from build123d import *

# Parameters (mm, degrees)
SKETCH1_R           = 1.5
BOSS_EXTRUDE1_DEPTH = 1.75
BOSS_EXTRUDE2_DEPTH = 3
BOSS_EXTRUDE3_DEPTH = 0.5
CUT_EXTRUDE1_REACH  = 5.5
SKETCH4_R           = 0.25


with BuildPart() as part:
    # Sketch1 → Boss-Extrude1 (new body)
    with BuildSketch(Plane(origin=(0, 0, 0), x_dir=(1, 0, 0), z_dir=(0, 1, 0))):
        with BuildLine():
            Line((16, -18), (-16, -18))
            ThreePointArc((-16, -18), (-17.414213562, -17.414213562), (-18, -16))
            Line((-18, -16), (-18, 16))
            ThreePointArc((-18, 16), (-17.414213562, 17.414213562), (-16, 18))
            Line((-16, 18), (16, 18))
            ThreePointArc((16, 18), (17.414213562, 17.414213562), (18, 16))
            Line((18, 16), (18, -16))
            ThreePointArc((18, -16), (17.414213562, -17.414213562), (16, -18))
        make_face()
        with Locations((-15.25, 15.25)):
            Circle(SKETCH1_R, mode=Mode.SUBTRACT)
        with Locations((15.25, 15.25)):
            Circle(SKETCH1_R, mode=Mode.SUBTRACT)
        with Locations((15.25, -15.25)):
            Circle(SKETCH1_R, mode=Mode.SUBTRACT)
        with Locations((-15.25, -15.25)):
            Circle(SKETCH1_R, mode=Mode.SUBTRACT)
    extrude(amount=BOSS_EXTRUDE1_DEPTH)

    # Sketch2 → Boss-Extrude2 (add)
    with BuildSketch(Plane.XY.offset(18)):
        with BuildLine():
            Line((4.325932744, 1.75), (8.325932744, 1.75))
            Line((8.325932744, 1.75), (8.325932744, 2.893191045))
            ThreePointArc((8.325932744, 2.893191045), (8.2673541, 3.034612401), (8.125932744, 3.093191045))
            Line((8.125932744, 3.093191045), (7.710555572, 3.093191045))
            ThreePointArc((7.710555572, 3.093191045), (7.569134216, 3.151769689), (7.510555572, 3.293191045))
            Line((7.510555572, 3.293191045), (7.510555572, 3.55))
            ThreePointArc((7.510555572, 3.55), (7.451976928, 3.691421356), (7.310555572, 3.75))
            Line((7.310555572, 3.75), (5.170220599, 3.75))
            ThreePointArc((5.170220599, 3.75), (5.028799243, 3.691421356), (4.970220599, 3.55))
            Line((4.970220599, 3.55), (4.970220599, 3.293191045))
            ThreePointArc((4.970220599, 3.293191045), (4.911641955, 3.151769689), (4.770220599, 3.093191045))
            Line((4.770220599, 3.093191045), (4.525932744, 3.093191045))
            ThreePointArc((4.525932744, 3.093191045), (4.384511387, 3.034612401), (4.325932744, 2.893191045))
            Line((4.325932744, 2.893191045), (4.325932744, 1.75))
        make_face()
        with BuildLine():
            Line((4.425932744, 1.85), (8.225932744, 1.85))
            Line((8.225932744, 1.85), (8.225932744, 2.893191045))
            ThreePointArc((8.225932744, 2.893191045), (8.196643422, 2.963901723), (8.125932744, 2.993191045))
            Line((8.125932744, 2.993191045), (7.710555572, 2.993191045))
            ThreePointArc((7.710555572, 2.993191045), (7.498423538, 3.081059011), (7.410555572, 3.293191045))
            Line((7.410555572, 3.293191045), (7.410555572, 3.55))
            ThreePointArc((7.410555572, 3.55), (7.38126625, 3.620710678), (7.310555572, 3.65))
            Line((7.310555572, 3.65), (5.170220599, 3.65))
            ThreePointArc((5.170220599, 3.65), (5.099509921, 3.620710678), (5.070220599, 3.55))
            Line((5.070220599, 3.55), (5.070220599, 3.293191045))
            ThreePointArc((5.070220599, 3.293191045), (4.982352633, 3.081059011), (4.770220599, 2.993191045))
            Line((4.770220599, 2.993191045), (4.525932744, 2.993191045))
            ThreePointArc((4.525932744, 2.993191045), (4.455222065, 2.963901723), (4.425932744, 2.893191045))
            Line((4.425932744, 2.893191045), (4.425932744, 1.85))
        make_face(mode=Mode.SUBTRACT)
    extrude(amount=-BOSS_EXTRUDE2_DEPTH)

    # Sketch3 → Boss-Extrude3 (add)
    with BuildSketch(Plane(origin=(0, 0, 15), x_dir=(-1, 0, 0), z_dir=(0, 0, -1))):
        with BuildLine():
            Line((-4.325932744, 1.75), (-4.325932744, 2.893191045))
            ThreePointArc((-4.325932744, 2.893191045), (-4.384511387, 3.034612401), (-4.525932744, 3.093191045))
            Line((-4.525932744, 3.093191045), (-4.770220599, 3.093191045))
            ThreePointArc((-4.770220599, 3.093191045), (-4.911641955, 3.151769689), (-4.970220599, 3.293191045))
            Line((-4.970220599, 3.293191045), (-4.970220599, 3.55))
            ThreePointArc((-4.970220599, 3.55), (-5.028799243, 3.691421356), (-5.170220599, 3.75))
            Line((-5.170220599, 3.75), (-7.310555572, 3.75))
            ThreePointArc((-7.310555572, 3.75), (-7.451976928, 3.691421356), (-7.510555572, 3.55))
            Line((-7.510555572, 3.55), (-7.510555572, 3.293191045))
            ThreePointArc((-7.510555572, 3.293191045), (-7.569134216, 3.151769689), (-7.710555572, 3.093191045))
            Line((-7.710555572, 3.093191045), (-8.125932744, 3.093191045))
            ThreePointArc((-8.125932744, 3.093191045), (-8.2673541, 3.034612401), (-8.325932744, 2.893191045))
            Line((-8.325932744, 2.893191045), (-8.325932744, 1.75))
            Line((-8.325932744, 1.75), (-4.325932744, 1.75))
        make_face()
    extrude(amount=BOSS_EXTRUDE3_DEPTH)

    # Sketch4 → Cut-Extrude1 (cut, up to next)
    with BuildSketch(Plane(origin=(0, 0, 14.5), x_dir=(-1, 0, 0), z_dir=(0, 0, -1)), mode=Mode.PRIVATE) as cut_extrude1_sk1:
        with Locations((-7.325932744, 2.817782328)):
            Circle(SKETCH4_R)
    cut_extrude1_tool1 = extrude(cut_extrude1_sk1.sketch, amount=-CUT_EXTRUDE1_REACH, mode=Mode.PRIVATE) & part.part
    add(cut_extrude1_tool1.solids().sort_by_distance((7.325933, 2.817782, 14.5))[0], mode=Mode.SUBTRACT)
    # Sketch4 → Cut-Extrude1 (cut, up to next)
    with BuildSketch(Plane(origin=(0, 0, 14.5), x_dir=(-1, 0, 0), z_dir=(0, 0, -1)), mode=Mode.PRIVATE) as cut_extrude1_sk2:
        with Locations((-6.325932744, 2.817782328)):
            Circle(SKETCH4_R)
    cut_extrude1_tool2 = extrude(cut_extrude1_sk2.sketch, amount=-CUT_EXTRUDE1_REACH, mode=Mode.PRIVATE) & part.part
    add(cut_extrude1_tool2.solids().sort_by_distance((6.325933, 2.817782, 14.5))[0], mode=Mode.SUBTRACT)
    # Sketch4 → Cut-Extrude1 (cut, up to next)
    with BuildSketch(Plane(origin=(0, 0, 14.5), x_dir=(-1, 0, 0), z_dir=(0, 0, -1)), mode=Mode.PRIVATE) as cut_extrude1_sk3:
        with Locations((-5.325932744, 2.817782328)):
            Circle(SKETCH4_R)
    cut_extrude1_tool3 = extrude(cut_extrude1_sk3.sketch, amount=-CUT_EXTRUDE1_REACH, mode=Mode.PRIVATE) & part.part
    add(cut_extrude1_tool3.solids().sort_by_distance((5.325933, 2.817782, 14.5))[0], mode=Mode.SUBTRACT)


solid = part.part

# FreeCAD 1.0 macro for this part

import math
import FreeCAD as App
import Part
import Sketcher

doc = App.newDocument("Part")
body = doc.addObject("PartDesign::Body", "Body")

# Sketch on XZ plane
sketch1 = doc.addObject("Sketcher::SketchObject", "Sketch")
body.addObject(sketch1)
sketch1.AttachmentSupport = (doc.XZ_Plane, [""])
sketch1.MapMode = "FlatFace"
sketch1.addGeometry([
    Part.LineSegment(App.Vector(-16, 18, 0), App.Vector(16, 18, 0)),  # 0
    Part.ArcOfCircle(Part.Circle(App.Vector(16, 16, 0), App.Vector(0, 0, 1), 2), math.radians(0), math.radians(90)),  # 1
    Part.LineSegment(App.Vector(18, 16, 0), App.Vector(18, -16, 0)),  # 2
    Part.ArcOfCircle(Part.Circle(App.Vector(16, -16, 0), App.Vector(0, 0, 1), 2), math.radians(-90), math.radians(0)),  # 3
    Part.LineSegment(App.Vector(16, -18, 0), App.Vector(-16, -18, 0)),  # 4
    Part.ArcOfCircle(Part.Circle(App.Vector(-16, -16, 0), App.Vector(0, 0, 1), 2), math.radians(-180), math.radians(-90)),  # 5
    Part.LineSegment(App.Vector(-18, -16, 0), App.Vector(-18, 16, 0)),  # 6
    Part.ArcOfCircle(Part.Circle(App.Vector(-16, 16, 0), App.Vector(0, 0, 1), 2), math.radians(90), math.radians(180)),  # 7
    Part.Circle(App.Vector(15.2, 15.2, 0), App.Vector(0, 0, 1), 1.5),  # 8
    Part.Circle(App.Vector(-15.2, 15.2, 0), App.Vector(0, 0, 1), 1.5),  # 9
    Part.Circle(App.Vector(15.2, -15.2, 0), App.Vector(0, 0, 1), 1.5),  # 10
    Part.Circle(App.Vector(-15.2, -15.2, 0), App.Vector(0, 0, 1), 1.5),  # 11
], False)
sketch1.addConstraint([
    Sketcher.Constraint("Tangent", 0, 2, 1, 2),
    Sketcher.Constraint("Tangent", 1, 1, 2, 1),
    Sketcher.Constraint("Tangent", 2, 2, 3, 2),
    Sketcher.Constraint("Tangent", 3, 1, 4, 1),
    Sketcher.Constraint("Tangent", 4, 2, 5, 2),
    Sketcher.Constraint("Tangent", 5, 1, 6, 1),
    Sketcher.Constraint("Tangent", 6, 2, 7, 2),
    Sketcher.Constraint("Tangent", 7, 1, 0, 1),
    Sketcher.Constraint("Horizontal", 0),
    Sketcher.Constraint("Vertical", 2),
    Sketcher.Constraint("Horizontal", 4),
    Sketcher.Constraint("Vertical", 6),
    Sketcher.Constraint("Equal", 1, 3),
    Sketcher.Constraint("Equal", 3, 5),
    Sketcher.Constraint("Equal", 5, 7),
    Sketcher.Constraint("Equal", 8, 9),
    Sketcher.Constraint("Equal", 9, 10),
    Sketcher.Constraint("Equal", 10, 11),
    Sketcher.Constraint("Symmetric", 1, 3, 5, 3, -1, 1),
    Sketcher.Constraint("Symmetric", 9, 3, 10, 3, -1, 1),
    Sketcher.Constraint("Symmetric", 8, 3, 11, 3, -1, 1),
    Sketcher.Constraint("Symmetric", 8, 3, 9, 3, -2),
    Sketcher.Constraint("Equal", 4, 2),
    Sketcher.Constraint("Diameter", 8, 3.0),
    Sketcher.Constraint("Radius", 1, 2.0),
    Sketcher.Constraint("DistanceX", 0, 1, 0, 2, 32.0),
    Sketcher.Constraint("DistanceX", 9, 3, 8, 3, 30.5),
    Sketcher.Constraint("DistanceY", 10, 3, 8, 3, 30.5),
])
pad1 = doc.addObject("PartDesign::Pad", "Pad")
body.addObject(pad1)
pad1.Profile = sketch1
pad1.Length = 1.75
pad1.Reversed = True

# Sketch on XY plane
sketch2 = doc.addObject("Sketcher::SketchObject", "Sketch001")
body.addObject(sketch2)
sketch2.AttachmentSupport = (doc.XY_Plane, [""])
sketch2.MapMode = "FlatFace"
sketch2.AttachmentOffset = App.Placement(App.Vector(0, 0, 18), App.Rotation())
sketch2.addGeometry([
    Part.LineSegment(App.Vector(4.33, 1.75, 0), App.Vector(8.33, 1.75, 0)),  # 0
    Part.LineSegment(App.Vector(8.33, 1.75, 0), App.Vector(8.33, 2.89, 0)),  # 1
    Part.ArcOfCircle(Part.Circle(App.Vector(8.13, 2.89, 0), App.Vector(0, 0, 1), 0.2), math.radians(0), math.radians(90)),  # 2
    Part.LineSegment(App.Vector(8.13, 3.09, 0), App.Vector(7.71, 3.09, 0)),  # 3
    Part.ArcOfCircle(Part.Circle(App.Vector(7.71, 3.29, 0), App.Vector(0, 0, 1), 0.2), math.radians(-180), math.radians(-90)),  # 4
    Part.LineSegment(App.Vector(7.51, 3.29, 0), App.Vector(7.51, 3.55, 0)),  # 5
    Part.ArcOfCircle(Part.Circle(App.Vector(7.31, 3.55, 0), App.Vector(0, 0, 1), 0.2), math.radians(0), math.radians(90)),  # 6
    Part.LineSegment(App.Vector(7.31, 3.75, 0), App.Vector(5.17, 3.75, 0)),  # 7
    Part.ArcOfCircle(Part.Circle(App.Vector(5.17, 3.55, 0), App.Vector(0, 0, 1), 0.2), math.radians(90), math.radians(180)),  # 8
    Part.LineSegment(App.Vector(4.97, 3.55, 0), App.Vector(4.97, 3.29, 0)),  # 9
    Part.ArcOfCircle(Part.Circle(App.Vector(4.77, 3.29, 0), App.Vector(0, 0, 1), 0.2), math.radians(-90), math.radians(0)),  # 10
    Part.LineSegment(App.Vector(4.77, 3.09, 0), App.Vector(4.53, 3.09, 0)),  # 11
    Part.ArcOfCircle(Part.Circle(App.Vector(4.53, 2.89, 0), App.Vector(0, 0, 1), 0.2), math.radians(90), math.radians(180)),  # 12
    Part.LineSegment(App.Vector(4.33, 2.89, 0), App.Vector(4.33, 1.75, 0)),  # 13
    Part.LineSegment(App.Vector(8.23, 1.85, 0), App.Vector(4.43, 1.85, 0)),  # 14
    Part.LineSegment(App.Vector(4.43, 1.85, 0), App.Vector(4.43, 2.89, 0)),  # 15
    Part.ArcOfCircle(Part.Circle(App.Vector(4.53, 2.89, 0), App.Vector(0, 0, 1), 0.1), math.radians(90), math.radians(180)),  # 16
    Part.LineSegment(App.Vector(4.53, 2.99, 0), App.Vector(4.77, 2.99, 0)),  # 17
    Part.ArcOfCircle(Part.Circle(App.Vector(4.77, 3.29, 0), App.Vector(0, 0, 1), 0.3), math.radians(-90), math.radians(0)),  # 18
    Part.LineSegment(App.Vector(5.07, 3.29, 0), App.Vector(5.07, 3.55, 0)),  # 19
    Part.ArcOfCircle(Part.Circle(App.Vector(5.17, 3.55, 0), App.Vector(0, 0, 1), 0.1), math.radians(90), math.radians(180)),  # 20
    Part.LineSegment(App.Vector(5.17, 3.65, 0), App.Vector(7.31, 3.65, 0)),  # 21
    Part.ArcOfCircle(Part.Circle(App.Vector(7.31, 3.55, 0), App.Vector(0, 0, 1), 0.1), math.radians(0), math.radians(90)),  # 22
    Part.LineSegment(App.Vector(7.41, 3.55, 0), App.Vector(7.41, 3.29, 0)),  # 23
    Part.ArcOfCircle(Part.Circle(App.Vector(7.71, 3.29, 0), App.Vector(0, 0, 1), 0.3), math.radians(-180), math.radians(-90)),  # 24
    Part.LineSegment(App.Vector(7.71, 2.99, 0), App.Vector(8.13, 2.99, 0)),  # 25
    Part.ArcOfCircle(Part.Circle(App.Vector(8.13, 2.89, 0), App.Vector(0, 0, 1), 0.1), math.radians(0), math.radians(90)),  # 26
    Part.LineSegment(App.Vector(8.23, 2.89, 0), App.Vector(8.23, 1.85, 0)),  # 27
], False)
sketch2.addConstraint([
    Sketcher.Constraint("Coincident", 0, 2, 1, 1),
    Sketcher.Constraint("Tangent", 1, 2, 2, 1),
    Sketcher.Constraint("Tangent", 2, 2, 3, 1),
    Sketcher.Constraint("Tangent", 3, 2, 4, 2),
    Sketcher.Constraint("Tangent", 4, 1, 5, 1),
    Sketcher.Constraint("Tangent", 5, 2, 6, 1),
    Sketcher.Constraint("Tangent", 6, 2, 7, 1),
    Sketcher.Constraint("Tangent", 7, 2, 8, 1),
    Sketcher.Constraint("Tangent", 8, 2, 9, 1),
    Sketcher.Constraint("Tangent", 9, 2, 10, 2),
    Sketcher.Constraint("Tangent", 10, 1, 11, 1),
    Sketcher.Constraint("Tangent", 11, 2, 12, 1),
    Sketcher.Constraint("Tangent", 12, 2, 13, 1),
    Sketcher.Constraint("Coincident", 13, 2, 0, 1),
    Sketcher.Constraint("Coincident", 14, 2, 15, 1),
    Sketcher.Constraint("Tangent", 15, 2, 16, 2),
    Sketcher.Constraint("Tangent", 16, 1, 17, 1),
    Sketcher.Constraint("Tangent", 17, 2, 18, 1),
    Sketcher.Constraint("Tangent", 18, 2, 19, 1),
    Sketcher.Constraint("Tangent", 19, 2, 20, 2),
    Sketcher.Constraint("Tangent", 20, 1, 21, 1),
    Sketcher.Constraint("Tangent", 21, 2, 22, 2),
    Sketcher.Constraint("Tangent", 22, 1, 23, 1),
    Sketcher.Constraint("Tangent", 23, 2, 24, 1),
    Sketcher.Constraint("Tangent", 24, 2, 25, 1),
    Sketcher.Constraint("Tangent", 25, 2, 26, 2),
    Sketcher.Constraint("Tangent", 26, 1, 27, 1),
    Sketcher.Constraint("Coincident", 27, 2, 14, 1),
    Sketcher.Constraint("Horizontal", 0),
    Sketcher.Constraint("Vertical", 1),
    Sketcher.Constraint("Horizontal", 3),
    Sketcher.Constraint("Vertical", 5),
    Sketcher.Constraint("Horizontal", 7),
    Sketcher.Constraint("Vertical", 9),
    Sketcher.Constraint("Horizontal", 11),
    Sketcher.Constraint("Vertical", 13),
    Sketcher.Constraint("Horizontal", 14),
    Sketcher.Constraint("Vertical", 15),
    Sketcher.Constraint("Horizontal", 17),
    Sketcher.Constraint("Vertical", 19),
    Sketcher.Constraint("Horizontal", 21),
    Sketcher.Constraint("Vertical", 23),
    Sketcher.Constraint("Horizontal", 25),
    Sketcher.Constraint("Vertical", 27),
    Sketcher.Constraint("Coincident", 16, 3, 12, 3),
    Sketcher.Constraint("Coincident", 18, 3, 10, 3),
    Sketcher.Constraint("Coincident", 20, 3, 8, 3),
    Sketcher.Constraint("Coincident", 22, 3, 6, 3),
    Sketcher.Constraint("Coincident", 24, 3, 4, 3),
    Sketcher.Constraint("Coincident", 26, 3, 2, 3),
    Sketcher.Constraint("Equal", 2, 4),
    Sketcher.Constraint("Equal", 4, 6),
    Sketcher.Constraint("Equal", 6, 8),
    Sketcher.Constraint("Equal", 8, 10),
    Sketcher.Constraint("Equal", 10, 12),
    Sketcher.Constraint("Horizontal", 4, 3, 10, 3),
    Sketcher.Constraint("Radius", 2, 0.2),
    Sketcher.Constraint("Radius", 16, 0.1),
    Sketcher.Constraint("DistanceX", 0, 1, 0, 2, 4.0),
    Sketcher.Constraint("DistanceY", 0, 2, 6, 3, 1.8),
    Sketcher.Constraint("DistanceY", 13, 2, 14, 2, 0.1),
    Sketcher.Constraint("DistanceY", -1, 1, 6, 3, 3.55),
    Sketcher.Constraint("DistanceY", 1, 1, 1, 2, 1.143191),
    Sketcher.Constraint("DistanceX", 3, 2, 3, 1, 0.415377),
    Sketcher.Constraint("DistanceX", 7, 2, 7, 1, 2.140335),
    Sketcher.Constraint("DistanceX", -1, 1, 8, 3, 5.170221),
])
pad2 = doc.addObject("PartDesign::Pad", "Pad001")
body.addObject(pad2)
pad2.Profile = sketch2
pad2.Length = 3
pad2.Reversed = True

# Sketch on XY plane
sketch3 = doc.addObject("Sketcher::SketchObject", "Sketch002")
body.addObject(sketch3)
sketch3.AttachmentSupport = (doc.XY_Plane, [""])
sketch3.MapMode = "FlatFace"
sketch3.AttachmentOffset = App.Placement(App.Vector(0, 0, 15), App.Rotation())
sketch3.addGeometry([
    Part.LineSegment(App.Vector(4.33, 1.75, 0), App.Vector(4.33, 2.89, 0)),  # 0
    Part.ArcOfCircle(Part.Circle(App.Vector(4.53, 2.89, 0), App.Vector(0, 0, 1), 0.2), math.radians(90), math.radians(180)),  # 1
    Part.LineSegment(App.Vector(4.53, 3.09, 0), App.Vector(4.77, 3.09, 0)),  # 2
    Part.ArcOfCircle(Part.Circle(App.Vector(4.77, 3.29, 0), App.Vector(0, 0, 1), 0.2), math.radians(-90), math.radians(0)),  # 3
    Part.LineSegment(App.Vector(4.97, 3.29, 0), App.Vector(4.97, 3.55, 0)),  # 4
    Part.ArcOfCircle(Part.Circle(App.Vector(5.17, 3.55, 0), App.Vector(0, 0, 1), 0.2), math.radians(90), math.radians(180)),  # 5
    Part.LineSegment(App.Vector(5.17, 3.75, 0), App.Vector(7.31, 3.75, 0)),  # 6
    Part.ArcOfCircle(Part.Circle(App.Vector(7.31, 3.55, 0), App.Vector(0, 0, 1), 0.2), math.radians(0), math.radians(90)),  # 7
    Part.LineSegment(App.Vector(7.51, 3.55, 0), App.Vector(7.51, 3.29, 0)),  # 8
    Part.ArcOfCircle(Part.Circle(App.Vector(7.71, 3.29, 0), App.Vector(0, 0, 1), 0.2), math.radians(-180), math.radians(-90)),  # 9
    Part.LineSegment(App.Vector(7.71, 3.09, 0), App.Vector(8.13, 3.09, 0)),  # 10
    Part.ArcOfCircle(Part.Circle(App.Vector(8.13, 2.89, 0), App.Vector(0, 0, 1), 0.2), math.radians(0), math.radians(90)),  # 11
    Part.LineSegment(App.Vector(8.33, 2.89, 0), App.Vector(8.33, 1.75, 0)),  # 12
    Part.LineSegment(App.Vector(8.33, 1.75, 0), App.Vector(4.33, 1.75, 0)),  # 13
], False)
sketch3.addConstraint([
    Sketcher.Constraint("Tangent", 0, 2, 1, 2),
    Sketcher.Constraint("Tangent", 1, 1, 2, 1),
    Sketcher.Constraint("Tangent", 2, 2, 3, 1),
    Sketcher.Constraint("Tangent", 3, 2, 4, 1),
    Sketcher.Constraint("Tangent", 4, 2, 5, 2),
    Sketcher.Constraint("Tangent", 5, 1, 6, 1),
    Sketcher.Constraint("Tangent", 6, 2, 7, 2),
    Sketcher.Constraint("Tangent", 7, 1, 8, 1),
    Sketcher.Constraint("Tangent", 8, 2, 9, 1),
    Sketcher.Constraint("Tangent", 9, 2, 10, 1),
    Sketcher.Constraint("Tangent", 10, 2, 11, 2),
    Sketcher.Constraint("Tangent", 11, 1, 12, 1),
    Sketcher.Constraint("Coincident", 12, 2, 13, 1),
    Sketcher.Constraint("Coincident", 13, 2, 0, 1),
    Sketcher.Constraint("Vertical", 0),
    Sketcher.Constraint("Horizontal", 2),
    Sketcher.Constraint("Vertical", 4),
    Sketcher.Constraint("Horizontal", 6),
    Sketcher.Constraint("Vertical", 8),
    Sketcher.Constraint("Horizontal", 10),
    Sketcher.Constraint("Vertical", 12),
    Sketcher.Constraint("Horizontal", 13),
    Sketcher.Constraint("Equal", 1, 3),
    Sketcher.Constraint("Equal", 3, 5),
    Sketcher.Constraint("Equal", 5, 7),
    Sketcher.Constraint("Equal", 7, 9),
    Sketcher.Constraint("Equal", 9, 11),
    Sketcher.Constraint("Horizontal", 3, 3, 9, 3),
    Sketcher.Constraint("Radius", 1, 0.2),
    Sketcher.Constraint("DistanceX", 13, 2, 13, 1, 4.0),
    Sketcher.Constraint("DistanceY", -1, 1, 5, 3, 3.55),
    Sketcher.Constraint("DistanceY", -1, 1, 12, 2, 1.75),
    Sketcher.Constraint("DistanceY", 0, 1, 0, 2, 1.143191),
    Sketcher.Constraint("DistanceX", 2, 1, 2, 2, 0.244288),
    Sketcher.Constraint("DistanceX", 6, 1, 6, 2, 2.140335),
    Sketcher.Constraint("DistanceX", -1, 1, 3, 3, 4.770221),
])
pad3 = doc.addObject("PartDesign::Pad", "Pad002")
body.addObject(pad3)
pad3.Profile = sketch3
pad3.Length = 0.5
pad3.Reversed = True

# Sketch on XY plane
sketch4 = doc.addObject("Sketcher::SketchObject", "Sketch003")
body.addObject(sketch4)
sketch4.AttachmentSupport = (doc.XY_Plane, [""])
sketch4.MapMode = "FlatFace"
sketch4.AttachmentOffset = App.Placement(App.Vector(0, 0, 14.5), App.Rotation())
sketch4.addGeometry(Part.Circle(App.Vector(7.33, 2.82, 0), App.Vector(0, 0, 1), 0.25), False)
sketch4.addConstraint([
    Sketcher.Constraint("Diameter", 0, 0.5),
    Sketcher.Constraint("DistanceX", -1, 1, 0, 3, 7.325933),
    Sketcher.Constraint("DistanceY", -1, 1, 0, 3, 2.817782),
])
pocket1 = doc.addObject("PartDesign::Pocket", "Pocket")
body.addObject(pocket1)
pocket1.Profile = sketch4
pocket1.Type = "UpToFirst"
pocket1.Reversed = True

# Sketch on XY plane
sketch5 = doc.addObject("Sketcher::SketchObject", "Sketch004")
body.addObject(sketch5)
sketch5.AttachmentSupport = (doc.XY_Plane, [""])
sketch5.MapMode = "FlatFace"
sketch5.AttachmentOffset = App.Placement(App.Vector(0, 0, 14.5), App.Rotation())
sketch5.addGeometry(Part.Circle(App.Vector(6.33, 2.82, 0), App.Vector(0, 0, 1), 0.25), False)
sketch5.addConstraint([
    Sketcher.Constraint("Diameter", 0, 0.5),
    Sketcher.Constraint("DistanceX", -1, 1, 0, 3, 6.325933),
    Sketcher.Constraint("DistanceY", -1, 1, 0, 3, 2.817782),
])
pocket2 = doc.addObject("PartDesign::Pocket", "Pocket001")
body.addObject(pocket2)
pocket2.Profile = sketch5
pocket2.Type = "UpToFirst"
pocket2.Reversed = True

# Sketch on XY plane
sketch6 = doc.addObject("Sketcher::SketchObject", "Sketch005")
body.addObject(sketch6)
sketch6.AttachmentSupport = (doc.XY_Plane, [""])
sketch6.MapMode = "FlatFace"
sketch6.AttachmentOffset = App.Placement(App.Vector(0, 0, 14.5), App.Rotation())
sketch6.addGeometry(Part.Circle(App.Vector(5.33, 2.82, 0), App.Vector(0, 0, 1), 0.25), False)
sketch6.addConstraint([
    Sketcher.Constraint("Diameter", 0, 0.5),
    Sketcher.Constraint("DistanceX", -1, 1, 0, 3, 5.325933),
    Sketcher.Constraint("DistanceY", -1, 1, 0, 3, 2.817782),
])
pocket3 = doc.addObject("PartDesign::Pocket", "Pocket002")
body.addObject(pocket3)
pocket3.Profile = sketch6
pocket3.Type = "UpToFirst"
pocket3.Reversed = True

doc.recompute()
